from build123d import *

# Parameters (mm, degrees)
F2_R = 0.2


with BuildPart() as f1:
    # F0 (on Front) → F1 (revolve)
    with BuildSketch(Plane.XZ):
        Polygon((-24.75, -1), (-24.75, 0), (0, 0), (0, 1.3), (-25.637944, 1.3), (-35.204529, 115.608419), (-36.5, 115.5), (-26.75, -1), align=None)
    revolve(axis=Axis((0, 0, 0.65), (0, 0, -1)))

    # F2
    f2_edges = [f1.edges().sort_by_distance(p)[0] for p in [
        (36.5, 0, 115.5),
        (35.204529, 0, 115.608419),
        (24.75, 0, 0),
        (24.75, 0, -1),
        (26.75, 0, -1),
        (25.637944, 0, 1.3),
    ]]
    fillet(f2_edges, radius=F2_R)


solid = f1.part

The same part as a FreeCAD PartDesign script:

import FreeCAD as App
import Part
import Sketcher
from FreeCAD import Vector


def edges_at(feature, points):
    """Names of the edges that pass closest to the given points."""
    edges = feature.Shape.Edges
    near = lambda p: min(range(len(edges)), key=lambda i: edges[i].distToShape(Part.Vertex(*p))[0])
    return sorted({f"Edge{near(p) + 1}" for p in points})


def add_polygon(sketch, points):
    """Adds a closed chain of lines whose ends are joined by coincident constraints."""
    first, n = sketch.GeometryCount, len(points)
    for a, b in zip(points, points[1:] + points[:1]):
        sketch.addGeometry(Part.LineSegment(App.Vector(*a, 0), App.Vector(*b, 0)), False)
    for i in range(n):
        sketch.addConstraint(Sketcher.Constraint("Coincident", first + i, 2, first + (i + 1) % n, 1))

doc = App.newDocument("Part")
body = doc.addObject("PartDesign::Body", "Body")

sketch1 = body.newObject("Sketcher::SketchObject", "Sketch")
sketch1.AttachmentSupport = (doc.getObject("XZ_Plane"), [""])
sketch1.MapMode = "FlatFace"
add_polygon(sketch1, [(-24.8, -1), (-24.8, 0), (0, 0), (0, 1.3), (-25.6, 1.3), (-35.2, 115.6), (-36.5, 115.5), (-26.8, -1)])
sketch1.addConstraint([
    Sketcher.Constraint("Vertical", 0),
    Sketcher.Constraint("Horizontal", 1),
    Sketcher.Constraint("Vertical", 2),
    Sketcher.Constraint("Horizontal", 3),
    Sketcher.Constraint("Horizontal", 7),
    Sketcher.Constraint("Coincident", 1, 2, -1, 1),
    Sketcher.Constraint("Perpendicular", 4, 5),
    Sketcher.Constraint("Perpendicular", 5, 6),
    Sketcher.Constraint("DistanceX", 7, 1, 7, 2, 2.0),
    Sketcher.Constraint("DistanceY", 0, 1, 0, 2, 1.0),
    Sketcher.Constraint("DistanceY", 2, 1, 2, 2, 1.3),
    Sketcher.Constraint("Distance", 5, 1.3),
    Sketcher.Constraint("DistanceX", 1, 1, 1, 2, 24.75),
    Sketcher.Constraint("DistanceX", 5, 2, -1, 1, 36.5),
    Sketcher.Constraint("DistanceY", -1, 1, 5, 2, 115.5),
])
revolution = body.newObject("PartDesign::Revolution", "Revolution")
revolution.Profile = sketch1
revolution.ReferenceAxis = (sketch1, ["V_Axis"])
revolution.Angle = 360
doc.recompute()

fillet = body.newObject("PartDesign::Fillet", "Fillet")
fillet.Base = (revolution, edges_at(revolution, [
    (36.5, 0, 115.5),
    (35.205, 0, 115.608),
    (24.75, 0, 0),
    (24.75, 0, -1),
    (26.75, 0, -1),
    (25.638, 0, 1.3),
]))
fillet.Radius = 0.2

doc.recompute()
